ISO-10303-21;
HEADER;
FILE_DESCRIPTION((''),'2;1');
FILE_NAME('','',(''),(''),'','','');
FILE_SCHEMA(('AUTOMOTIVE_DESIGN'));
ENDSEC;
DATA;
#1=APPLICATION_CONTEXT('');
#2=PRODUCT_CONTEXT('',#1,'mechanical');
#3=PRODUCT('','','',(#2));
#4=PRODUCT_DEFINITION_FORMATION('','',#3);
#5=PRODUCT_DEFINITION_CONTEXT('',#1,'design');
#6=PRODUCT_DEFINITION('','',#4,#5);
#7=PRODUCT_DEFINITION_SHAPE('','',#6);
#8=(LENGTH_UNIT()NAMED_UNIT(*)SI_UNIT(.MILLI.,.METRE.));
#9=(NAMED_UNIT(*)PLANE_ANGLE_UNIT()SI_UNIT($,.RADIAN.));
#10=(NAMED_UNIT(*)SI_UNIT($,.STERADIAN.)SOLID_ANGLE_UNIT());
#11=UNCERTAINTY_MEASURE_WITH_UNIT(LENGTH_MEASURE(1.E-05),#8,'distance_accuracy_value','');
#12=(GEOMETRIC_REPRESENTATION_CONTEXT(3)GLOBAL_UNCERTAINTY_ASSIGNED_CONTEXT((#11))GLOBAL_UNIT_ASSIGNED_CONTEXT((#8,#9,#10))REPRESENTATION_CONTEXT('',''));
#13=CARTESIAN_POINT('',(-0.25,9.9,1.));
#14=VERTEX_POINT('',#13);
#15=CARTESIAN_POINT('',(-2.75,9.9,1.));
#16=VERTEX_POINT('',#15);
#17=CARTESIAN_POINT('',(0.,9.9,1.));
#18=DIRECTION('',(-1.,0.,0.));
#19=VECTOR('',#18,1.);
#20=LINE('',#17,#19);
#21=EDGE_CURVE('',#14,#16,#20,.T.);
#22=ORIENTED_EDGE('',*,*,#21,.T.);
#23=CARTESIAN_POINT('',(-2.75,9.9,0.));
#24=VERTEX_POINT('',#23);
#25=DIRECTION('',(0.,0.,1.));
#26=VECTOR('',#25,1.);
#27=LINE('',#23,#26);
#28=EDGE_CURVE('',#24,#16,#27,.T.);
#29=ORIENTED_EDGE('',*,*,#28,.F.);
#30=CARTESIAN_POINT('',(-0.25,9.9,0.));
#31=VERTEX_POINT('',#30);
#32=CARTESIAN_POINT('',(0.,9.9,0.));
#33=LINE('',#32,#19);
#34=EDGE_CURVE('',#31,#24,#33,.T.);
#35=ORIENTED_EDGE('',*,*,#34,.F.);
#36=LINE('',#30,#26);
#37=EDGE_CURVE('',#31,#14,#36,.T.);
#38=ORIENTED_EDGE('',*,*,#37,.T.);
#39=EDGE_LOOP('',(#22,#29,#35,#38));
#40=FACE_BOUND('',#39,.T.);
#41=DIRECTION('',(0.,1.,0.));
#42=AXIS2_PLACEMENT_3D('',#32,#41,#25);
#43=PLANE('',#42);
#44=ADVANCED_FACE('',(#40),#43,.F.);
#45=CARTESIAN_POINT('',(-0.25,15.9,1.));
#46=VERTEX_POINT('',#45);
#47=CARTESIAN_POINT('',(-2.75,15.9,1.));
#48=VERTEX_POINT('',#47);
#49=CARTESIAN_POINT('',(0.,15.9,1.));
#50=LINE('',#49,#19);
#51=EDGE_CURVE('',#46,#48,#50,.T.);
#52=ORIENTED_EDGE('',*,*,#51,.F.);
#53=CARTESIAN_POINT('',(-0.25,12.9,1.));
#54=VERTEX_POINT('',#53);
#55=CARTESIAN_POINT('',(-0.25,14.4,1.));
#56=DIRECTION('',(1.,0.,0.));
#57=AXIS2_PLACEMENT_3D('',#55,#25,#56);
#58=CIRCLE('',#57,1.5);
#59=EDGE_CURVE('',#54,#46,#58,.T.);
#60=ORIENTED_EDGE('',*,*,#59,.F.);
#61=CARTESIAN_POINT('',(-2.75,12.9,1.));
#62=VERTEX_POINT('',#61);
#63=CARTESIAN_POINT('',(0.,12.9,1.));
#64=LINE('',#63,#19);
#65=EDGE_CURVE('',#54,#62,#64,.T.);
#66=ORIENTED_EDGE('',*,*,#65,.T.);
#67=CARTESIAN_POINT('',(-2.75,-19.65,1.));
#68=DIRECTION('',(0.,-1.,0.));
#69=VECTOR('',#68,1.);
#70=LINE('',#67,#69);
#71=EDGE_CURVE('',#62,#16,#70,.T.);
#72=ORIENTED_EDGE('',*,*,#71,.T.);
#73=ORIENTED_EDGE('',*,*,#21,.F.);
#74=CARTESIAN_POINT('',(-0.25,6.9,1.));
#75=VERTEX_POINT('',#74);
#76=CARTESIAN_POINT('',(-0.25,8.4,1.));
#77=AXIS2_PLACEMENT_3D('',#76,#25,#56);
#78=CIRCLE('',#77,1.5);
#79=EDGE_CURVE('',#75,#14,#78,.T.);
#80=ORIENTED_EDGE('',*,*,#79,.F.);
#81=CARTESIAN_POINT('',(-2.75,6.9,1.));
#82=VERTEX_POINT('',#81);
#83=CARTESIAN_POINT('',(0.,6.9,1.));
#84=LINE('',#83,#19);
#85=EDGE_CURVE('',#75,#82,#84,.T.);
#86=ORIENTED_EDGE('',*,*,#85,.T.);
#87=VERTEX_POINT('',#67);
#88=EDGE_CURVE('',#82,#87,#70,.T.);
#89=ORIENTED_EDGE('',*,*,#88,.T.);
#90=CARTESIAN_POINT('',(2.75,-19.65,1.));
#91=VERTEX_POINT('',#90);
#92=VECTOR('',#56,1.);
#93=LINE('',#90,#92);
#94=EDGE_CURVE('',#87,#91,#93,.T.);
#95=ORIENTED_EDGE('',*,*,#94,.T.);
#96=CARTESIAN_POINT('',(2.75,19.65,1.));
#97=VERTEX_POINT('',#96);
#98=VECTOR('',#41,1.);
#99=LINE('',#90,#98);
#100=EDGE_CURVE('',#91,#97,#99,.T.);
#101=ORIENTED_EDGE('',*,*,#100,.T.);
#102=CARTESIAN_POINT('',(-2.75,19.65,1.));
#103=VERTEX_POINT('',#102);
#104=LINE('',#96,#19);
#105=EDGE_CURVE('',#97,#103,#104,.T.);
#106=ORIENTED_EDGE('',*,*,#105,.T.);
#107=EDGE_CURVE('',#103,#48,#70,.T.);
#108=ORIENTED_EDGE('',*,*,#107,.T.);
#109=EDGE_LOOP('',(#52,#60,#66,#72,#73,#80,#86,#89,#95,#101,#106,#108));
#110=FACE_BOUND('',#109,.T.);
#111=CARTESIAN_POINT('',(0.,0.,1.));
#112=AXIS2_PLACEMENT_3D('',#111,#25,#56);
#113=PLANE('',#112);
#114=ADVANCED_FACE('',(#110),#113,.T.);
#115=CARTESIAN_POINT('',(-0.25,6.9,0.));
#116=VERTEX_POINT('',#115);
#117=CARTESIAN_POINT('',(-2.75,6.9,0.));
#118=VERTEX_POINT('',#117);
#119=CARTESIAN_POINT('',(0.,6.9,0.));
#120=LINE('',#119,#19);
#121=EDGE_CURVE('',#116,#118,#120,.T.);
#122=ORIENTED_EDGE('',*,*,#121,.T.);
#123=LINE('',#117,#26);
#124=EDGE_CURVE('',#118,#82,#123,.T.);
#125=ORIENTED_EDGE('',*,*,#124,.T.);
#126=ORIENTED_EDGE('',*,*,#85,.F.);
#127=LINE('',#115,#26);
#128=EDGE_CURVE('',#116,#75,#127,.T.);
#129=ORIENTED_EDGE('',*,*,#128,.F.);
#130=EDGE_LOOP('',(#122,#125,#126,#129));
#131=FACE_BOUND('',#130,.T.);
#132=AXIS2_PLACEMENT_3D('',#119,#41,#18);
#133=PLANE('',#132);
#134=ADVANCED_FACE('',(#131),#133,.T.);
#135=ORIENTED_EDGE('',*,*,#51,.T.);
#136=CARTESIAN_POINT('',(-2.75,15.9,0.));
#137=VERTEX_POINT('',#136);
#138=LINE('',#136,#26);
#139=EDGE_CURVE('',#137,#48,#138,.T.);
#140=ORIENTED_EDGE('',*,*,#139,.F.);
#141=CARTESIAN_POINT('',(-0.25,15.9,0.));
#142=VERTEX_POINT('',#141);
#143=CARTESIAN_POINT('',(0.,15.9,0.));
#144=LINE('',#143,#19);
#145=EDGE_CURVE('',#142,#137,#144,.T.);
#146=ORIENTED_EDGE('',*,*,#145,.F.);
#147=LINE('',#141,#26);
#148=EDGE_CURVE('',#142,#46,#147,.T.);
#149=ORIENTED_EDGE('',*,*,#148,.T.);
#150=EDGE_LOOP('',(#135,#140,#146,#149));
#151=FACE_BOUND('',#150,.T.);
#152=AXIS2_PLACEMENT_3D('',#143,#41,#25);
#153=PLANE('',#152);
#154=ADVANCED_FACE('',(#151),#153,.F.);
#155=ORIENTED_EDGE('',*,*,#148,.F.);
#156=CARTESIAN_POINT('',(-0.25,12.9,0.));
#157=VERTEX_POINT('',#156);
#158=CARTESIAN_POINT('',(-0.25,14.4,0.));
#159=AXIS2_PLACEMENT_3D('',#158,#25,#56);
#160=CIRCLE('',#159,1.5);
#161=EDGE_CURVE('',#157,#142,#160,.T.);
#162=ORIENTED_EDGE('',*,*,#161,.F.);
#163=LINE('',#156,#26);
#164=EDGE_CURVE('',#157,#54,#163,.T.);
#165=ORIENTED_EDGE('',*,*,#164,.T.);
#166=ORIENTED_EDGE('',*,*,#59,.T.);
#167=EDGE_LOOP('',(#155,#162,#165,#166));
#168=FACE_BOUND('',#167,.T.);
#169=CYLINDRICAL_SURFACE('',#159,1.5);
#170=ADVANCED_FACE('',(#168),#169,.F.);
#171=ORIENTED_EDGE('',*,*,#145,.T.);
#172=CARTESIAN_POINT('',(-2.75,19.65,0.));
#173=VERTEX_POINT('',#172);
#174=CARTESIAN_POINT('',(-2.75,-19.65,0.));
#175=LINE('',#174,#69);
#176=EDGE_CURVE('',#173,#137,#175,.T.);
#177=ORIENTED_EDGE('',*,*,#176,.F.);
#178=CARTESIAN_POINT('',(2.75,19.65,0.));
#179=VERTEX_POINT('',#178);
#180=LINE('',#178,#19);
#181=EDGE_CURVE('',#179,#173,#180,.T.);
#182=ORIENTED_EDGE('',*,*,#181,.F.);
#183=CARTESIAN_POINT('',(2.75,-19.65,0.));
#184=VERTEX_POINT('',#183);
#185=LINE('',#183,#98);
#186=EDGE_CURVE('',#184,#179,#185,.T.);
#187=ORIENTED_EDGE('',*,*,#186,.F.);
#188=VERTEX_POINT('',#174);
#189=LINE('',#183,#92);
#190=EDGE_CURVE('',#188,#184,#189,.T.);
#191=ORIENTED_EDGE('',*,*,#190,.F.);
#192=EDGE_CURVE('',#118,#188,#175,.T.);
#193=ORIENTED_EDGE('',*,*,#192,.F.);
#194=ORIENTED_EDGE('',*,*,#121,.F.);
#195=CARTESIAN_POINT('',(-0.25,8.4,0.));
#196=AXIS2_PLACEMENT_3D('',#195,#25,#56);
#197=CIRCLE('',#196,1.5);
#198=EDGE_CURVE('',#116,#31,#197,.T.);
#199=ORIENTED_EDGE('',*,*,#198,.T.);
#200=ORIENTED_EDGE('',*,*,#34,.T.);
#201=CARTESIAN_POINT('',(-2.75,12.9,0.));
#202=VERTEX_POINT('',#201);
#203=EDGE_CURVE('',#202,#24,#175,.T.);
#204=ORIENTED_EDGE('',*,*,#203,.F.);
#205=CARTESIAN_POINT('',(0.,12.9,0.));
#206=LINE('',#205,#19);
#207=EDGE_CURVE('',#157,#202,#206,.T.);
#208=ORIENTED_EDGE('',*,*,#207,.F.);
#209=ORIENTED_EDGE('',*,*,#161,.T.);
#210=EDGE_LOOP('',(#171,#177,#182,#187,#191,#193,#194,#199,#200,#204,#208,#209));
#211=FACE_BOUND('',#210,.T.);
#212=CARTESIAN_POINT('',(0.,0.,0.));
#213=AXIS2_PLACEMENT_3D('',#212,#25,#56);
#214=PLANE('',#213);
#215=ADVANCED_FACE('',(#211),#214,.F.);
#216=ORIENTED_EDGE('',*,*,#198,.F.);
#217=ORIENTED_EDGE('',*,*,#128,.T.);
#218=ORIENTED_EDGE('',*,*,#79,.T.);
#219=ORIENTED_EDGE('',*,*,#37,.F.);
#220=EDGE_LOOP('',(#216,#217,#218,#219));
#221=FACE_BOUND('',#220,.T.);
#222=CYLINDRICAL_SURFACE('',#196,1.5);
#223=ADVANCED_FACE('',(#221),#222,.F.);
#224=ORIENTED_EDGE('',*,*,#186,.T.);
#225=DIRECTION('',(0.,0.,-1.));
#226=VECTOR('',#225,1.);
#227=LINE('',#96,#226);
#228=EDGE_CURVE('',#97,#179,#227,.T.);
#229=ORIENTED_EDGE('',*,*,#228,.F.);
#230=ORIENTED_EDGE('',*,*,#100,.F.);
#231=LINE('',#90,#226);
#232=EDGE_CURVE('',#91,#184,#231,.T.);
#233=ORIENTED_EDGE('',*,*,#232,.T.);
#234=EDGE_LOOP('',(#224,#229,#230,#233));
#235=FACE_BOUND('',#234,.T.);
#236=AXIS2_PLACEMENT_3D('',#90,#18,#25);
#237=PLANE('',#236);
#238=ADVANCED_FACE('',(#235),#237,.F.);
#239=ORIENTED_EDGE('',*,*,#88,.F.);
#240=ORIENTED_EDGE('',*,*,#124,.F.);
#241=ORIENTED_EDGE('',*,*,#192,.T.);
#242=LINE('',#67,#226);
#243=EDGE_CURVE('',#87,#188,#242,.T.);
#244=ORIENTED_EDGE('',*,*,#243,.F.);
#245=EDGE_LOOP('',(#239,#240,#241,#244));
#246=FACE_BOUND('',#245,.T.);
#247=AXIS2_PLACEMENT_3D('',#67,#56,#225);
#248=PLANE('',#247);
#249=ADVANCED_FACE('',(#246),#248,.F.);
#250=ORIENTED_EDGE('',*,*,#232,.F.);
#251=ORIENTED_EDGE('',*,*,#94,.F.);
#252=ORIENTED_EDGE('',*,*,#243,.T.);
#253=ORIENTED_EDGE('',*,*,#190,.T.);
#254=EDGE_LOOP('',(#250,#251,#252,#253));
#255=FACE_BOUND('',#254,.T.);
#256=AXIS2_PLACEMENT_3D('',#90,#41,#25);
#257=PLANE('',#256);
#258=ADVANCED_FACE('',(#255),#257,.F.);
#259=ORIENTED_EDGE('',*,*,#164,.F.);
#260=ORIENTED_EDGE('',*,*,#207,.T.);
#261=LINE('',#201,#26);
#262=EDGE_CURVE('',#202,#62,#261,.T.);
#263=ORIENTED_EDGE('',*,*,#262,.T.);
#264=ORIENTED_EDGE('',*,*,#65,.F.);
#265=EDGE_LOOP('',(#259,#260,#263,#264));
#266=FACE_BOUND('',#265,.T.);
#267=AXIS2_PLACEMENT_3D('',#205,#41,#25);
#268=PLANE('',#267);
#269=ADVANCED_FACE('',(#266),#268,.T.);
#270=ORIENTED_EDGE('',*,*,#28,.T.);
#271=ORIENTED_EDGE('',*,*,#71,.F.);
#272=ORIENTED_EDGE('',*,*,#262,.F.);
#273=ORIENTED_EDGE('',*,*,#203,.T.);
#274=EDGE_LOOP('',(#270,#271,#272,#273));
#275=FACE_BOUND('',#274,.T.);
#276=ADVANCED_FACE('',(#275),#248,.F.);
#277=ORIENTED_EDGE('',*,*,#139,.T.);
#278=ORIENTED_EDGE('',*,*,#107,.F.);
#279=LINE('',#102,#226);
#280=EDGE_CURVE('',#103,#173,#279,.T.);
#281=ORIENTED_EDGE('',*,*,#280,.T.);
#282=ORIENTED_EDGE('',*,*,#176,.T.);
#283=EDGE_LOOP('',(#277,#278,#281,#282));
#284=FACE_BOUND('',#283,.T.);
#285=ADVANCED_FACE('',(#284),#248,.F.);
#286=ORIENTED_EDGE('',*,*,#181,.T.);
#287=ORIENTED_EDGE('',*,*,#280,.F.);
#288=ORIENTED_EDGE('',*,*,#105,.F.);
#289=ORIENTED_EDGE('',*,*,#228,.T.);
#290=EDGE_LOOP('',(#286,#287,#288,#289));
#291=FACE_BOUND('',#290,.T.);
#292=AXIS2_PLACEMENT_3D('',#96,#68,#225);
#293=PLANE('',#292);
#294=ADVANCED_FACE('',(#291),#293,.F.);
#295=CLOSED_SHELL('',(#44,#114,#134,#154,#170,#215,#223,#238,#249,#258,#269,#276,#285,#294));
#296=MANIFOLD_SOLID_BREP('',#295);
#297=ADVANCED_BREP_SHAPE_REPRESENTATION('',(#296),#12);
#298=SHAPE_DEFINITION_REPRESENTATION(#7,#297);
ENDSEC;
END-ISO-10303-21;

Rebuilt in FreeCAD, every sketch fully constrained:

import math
import FreeCAD as App
import Part
import Sketcher

V = App.Vector

doc = App.newDocument("Part")
body = doc.addObject("PartDesign::Body", "Body")

sketch1 = body.newObject("Sketcher::SketchObject", "Sketch")
sketch1.AttachmentSupport = (doc.getObject("XY_Plane"), [""])
sketch1.MapMode = "FlatFace"
sketch1.addGeometry([
    Part.LineSegment(V(-2.75, 19.65, 0), V(-2.75, -19.65, 0)),
    Part.LineSegment(V(-2.75, -19.65, 0), V(2.75, -19.65, 0)),
    Part.LineSegment(V(2.75, -19.65, 0), V(2.75, 19.65, 0)),
    Part.LineSegment(V(2.75, 19.65, 0), V(-2.75, 19.65, 0)),
], False)
sketch1.addConstraint([
    Sketcher.Constraint("Coincident", 0, 2, 1, 1),
    Sketcher.Constraint("Coincident", 1, 2, 2, 1),
    Sketcher.Constraint("Coincident", 2, 2, 3, 1),
    Sketcher.Constraint("Coincident", 3, 2, 0, 1),
    Sketcher.Constraint("Vertical", 0),
    Sketcher.Constraint("Horizontal", 1),
    Sketcher.Constraint("Vertical", 2),
    Sketcher.Constraint("Horizontal", 3),
    Sketcher.Constraint("Symmetric", 0, 2, 2, 2, -1, 1),
    Sketcher.Constraint("DistanceX", 1, 1, 1, 2, 5.5),
    Sketcher.Constraint("DistanceY", 0, 2, 0, 1, 39.3),
])
pad1 = body.newObject("PartDesign::Pad", "Pad")
pad1.Profile = sketch1
pad1.Length = 1

sketch2 = body.newObject("Sketcher::SketchObject", "Sketch001")
sketch2.AttachmentSupport = (doc.getObject("XY_Plane"), [""])
sketch2.MapMode = "FlatFace"
sketch2.AttachmentOffset = App.Placement(V(0, 0, 1), App.Rotation())
sketch2.addGeometry([
    Part.LineSegment(V(-2.75, 15.9, 0), V(-2.75, 12.9, 0)),
    Part.LineSegment(V(-2.75, 12.9, 0), V(-0.25, 12.9, 0)),
    Part.ArcOfCircle(Part.Circle(V(-0.25, 14.4, 0), V(0, 0, 1), 1.5), math.radians(-90), math.radians(0)),
    Part.ArcOfCircle(Part.Circle(V(-0.25, 14.4, 0), V(0, 0, 1), 1.5), math.radians(0), math.radians(90)),
    Part.LineSegment(V(-0.25, 15.9, 0), V(-2.75, 15.9, 0)),
    Part.LineSegment(V(-2.75, 9.9, 0), V(-2.75, 6.9, 0)),
    Part.LineSegment(V(-2.75, 6.9, 0), V(-0.25, 6.9, 0)),
    Part.ArcOfCircle(Part.Circle(V(-0.25, 8.4, 0), V(0, 0, 1), 1.5), math.radians(-90), math.radians(0)),
    Part.ArcOfCircle(Part.Circle(V(-0.25, 8.4, 0), V(0, 0, 1), 1.5), math.radians(0), math.radians(90)),
    Part.LineSegment(V(-0.25, 9.9, 0), V(-2.75, 9.9, 0)),
], False)
sketch2.addConstraint([
    Sketcher.Constraint("Coincident", 0, 2, 1, 1),
    Sketcher.Constraint("Tangent", 1, 2, 2, 1),
    Sketcher.Constraint("Tangent", 2, 2, 3, 1),
    Sketcher.Constraint("Tangent", 3, 2, 4, 1),
    Sketcher.Constraint("Coincident", 4, 2, 0, 1),
    Sketcher.Constraint("Coincident", 5, 2, 6, 1),
    Sketcher.Constraint("Tangent", 6, 2, 7, 1),
    Sketcher.Constraint("Tangent", 7, 2, 8, 1),
    Sketcher.Constraint("Tangent", 8, 2, 9, 1),
    Sketcher.Constraint("Coincident", 9, 2, 5, 1),
    Sketcher.Constraint("Vertical", 0),
    Sketcher.Constraint("Horizontal", 1),
    Sketcher.Constraint("Horizontal", 4),
    Sketcher.Constraint("Vertical", 5),
    Sketcher.Constraint("Horizontal", 6),
    Sketcher.Constraint("Horizontal", 9),
    Sketcher.Constraint("Equal", 2, 3),
    Sketcher.Constraint("Equal", 3, 7),
    Sketcher.Constraint("Equal", 7, 8),
    Sketcher.Constraint("Horizontal", 3, 3, 2, 2),
    Sketcher.Constraint("Horizontal", 8, 3, 7, 2),
    Sketcher.Constraint("Vertical", 3, 3, 7, 3),
    Sketcher.Constraint("Vertical", 4, 2, 5, 2),
    Sketcher.Constraint("Radius", 2, 1.5),
    Sketcher.Constraint("DistanceX", 1, 1, 1, 2, 2.5),
    Sketcher.Constraint("DistanceY", 7, 3, 2, 3, 6.0),
    Sketcher.Constraint("DistanceY", -1, 1, 2, 3, 14.4),
    Sketcher.Constraint("DistanceX", 2, 3, -1, 1, 0.25),
])
pocket1 = body.newObject("PartDesign::Pocket", "Pocket")
pocket1.Profile = sketch2
pocket1.Length = 1

doc.recompute()
